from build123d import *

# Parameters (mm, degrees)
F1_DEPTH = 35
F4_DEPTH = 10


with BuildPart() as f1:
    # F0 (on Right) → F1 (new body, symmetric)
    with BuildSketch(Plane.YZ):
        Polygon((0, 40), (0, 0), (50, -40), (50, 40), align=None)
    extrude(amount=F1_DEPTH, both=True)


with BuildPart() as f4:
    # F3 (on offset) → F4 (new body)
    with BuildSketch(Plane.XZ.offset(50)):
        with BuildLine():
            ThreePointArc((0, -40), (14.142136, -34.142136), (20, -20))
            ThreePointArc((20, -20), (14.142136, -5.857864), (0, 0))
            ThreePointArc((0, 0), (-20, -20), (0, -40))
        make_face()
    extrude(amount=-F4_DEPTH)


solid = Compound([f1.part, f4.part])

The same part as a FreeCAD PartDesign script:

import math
import FreeCAD as App
import Part
import Sketcher

V = App.Vector


def add_polygon(sketch, points):
    """Adds a closed chain of lines whose ends are joined by coincident constraints."""
    first, n = sketch.GeometryCount, len(points)
    for a, b in zip(points, points[1:] + points[:1]):
        sketch.addGeometry(Part.LineSegment(App.Vector(*a, 0), App.Vector(*b, 0)), False)
    for i in range(n):
        sketch.addConstraint(Sketcher.Constraint("Coincident", first + i, 2, first + (i + 1) % n, 1))

doc = App.newDocument("Part")
body = doc.addObject("PartDesign::Body", "Body")

# Sketch on YZ plane
sketch1 = body.newObject("Sketcher::SketchObject", "Sketch")
sketch1.AttachmentSupport = (doc.getObject("YZ_Plane"), [""])
sketch1.MapMode = "FlatFace"
add_polygon(sketch1, [(0, 40), (0, 0), (50, -40), (50, 40)])  # lines 0-3
sketch1.addConstraint([
    Sketcher.Constraint("Vertical", 0),
    Sketcher.Constraint("Vertical", 2),
    Sketcher.Constraint("Horizontal", 3),
    Sketcher.Constraint("Coincident", 0, 2, -1, 1),
    Sketcher.Constraint("DistanceX", 3, 2, 3, 1, 50.0),
    Sketcher.Constraint("DistanceY", 0, 2, 0, 1, 40.0),
    Sketcher.Constraint("DistanceY", 2, 1, 2, 2, 80.0),
])
pad1 = body.newObject("PartDesign::Pad", "Pad")
pad1.Profile = sketch1
pad1.Length = 70
pad1.Midplane = True
body2 = doc.addObject("PartDesign::Body", "Body001")

# Sketch on XZ plane
sketch2 = body2.newObject("Sketcher::SketchObject", "Sketch001")
sketch2.AttachmentSupport = (doc.getObject("XZ_Plane001"), [""])
sketch2.MapMode = "FlatFace"
sketch2.AttachmentOffset = App.Placement(V(0, 0, 50), App.Rotation())
sketch2.addGeometry([
    Part.ArcOfCircle(Part.Circle(V(0, -20, 0), V(0, 0, 1), 20), math.radians(-90), math.radians(0)),
    Part.ArcOfCircle(Part.Circle(V(0, -20, 0), V(0, 0, 1), 20), math.radians(0), math.radians(90)),
    Part.ArcOfCircle(Part.Circle(V(0, -20, 0), V(0, 0, 1), 20), math.radians(90), math.radians(270)),
], False)
sketch2.addConstraint([
    Sketcher.Constraint("Tangent", 0, 2, 1, 1),
    Sketcher.Constraint("Tangent", 1, 2, 2, 1),
    Sketcher.Constraint("Tangent", 2, 2, 0, 1),
    Sketcher.Constraint("Coincident", 1, 2, -1, 1),
    Sketcher.Constraint("PointOnObject", 0, 3, -2),
    Sketcher.Constraint("PointOnObject", 2, 2, -2),
    Sketcher.Constraint("Horizontal", 2, 3, 0, 2),
    Sketcher.Constraint("Radius", 0, 19.999999),
])
pad2 = body2.newObject("PartDesign::Pad", "Pad001")
pad2.Profile = sketch2
pad2.Length = 10
pad2.Reversed = True

doc.recompute()
